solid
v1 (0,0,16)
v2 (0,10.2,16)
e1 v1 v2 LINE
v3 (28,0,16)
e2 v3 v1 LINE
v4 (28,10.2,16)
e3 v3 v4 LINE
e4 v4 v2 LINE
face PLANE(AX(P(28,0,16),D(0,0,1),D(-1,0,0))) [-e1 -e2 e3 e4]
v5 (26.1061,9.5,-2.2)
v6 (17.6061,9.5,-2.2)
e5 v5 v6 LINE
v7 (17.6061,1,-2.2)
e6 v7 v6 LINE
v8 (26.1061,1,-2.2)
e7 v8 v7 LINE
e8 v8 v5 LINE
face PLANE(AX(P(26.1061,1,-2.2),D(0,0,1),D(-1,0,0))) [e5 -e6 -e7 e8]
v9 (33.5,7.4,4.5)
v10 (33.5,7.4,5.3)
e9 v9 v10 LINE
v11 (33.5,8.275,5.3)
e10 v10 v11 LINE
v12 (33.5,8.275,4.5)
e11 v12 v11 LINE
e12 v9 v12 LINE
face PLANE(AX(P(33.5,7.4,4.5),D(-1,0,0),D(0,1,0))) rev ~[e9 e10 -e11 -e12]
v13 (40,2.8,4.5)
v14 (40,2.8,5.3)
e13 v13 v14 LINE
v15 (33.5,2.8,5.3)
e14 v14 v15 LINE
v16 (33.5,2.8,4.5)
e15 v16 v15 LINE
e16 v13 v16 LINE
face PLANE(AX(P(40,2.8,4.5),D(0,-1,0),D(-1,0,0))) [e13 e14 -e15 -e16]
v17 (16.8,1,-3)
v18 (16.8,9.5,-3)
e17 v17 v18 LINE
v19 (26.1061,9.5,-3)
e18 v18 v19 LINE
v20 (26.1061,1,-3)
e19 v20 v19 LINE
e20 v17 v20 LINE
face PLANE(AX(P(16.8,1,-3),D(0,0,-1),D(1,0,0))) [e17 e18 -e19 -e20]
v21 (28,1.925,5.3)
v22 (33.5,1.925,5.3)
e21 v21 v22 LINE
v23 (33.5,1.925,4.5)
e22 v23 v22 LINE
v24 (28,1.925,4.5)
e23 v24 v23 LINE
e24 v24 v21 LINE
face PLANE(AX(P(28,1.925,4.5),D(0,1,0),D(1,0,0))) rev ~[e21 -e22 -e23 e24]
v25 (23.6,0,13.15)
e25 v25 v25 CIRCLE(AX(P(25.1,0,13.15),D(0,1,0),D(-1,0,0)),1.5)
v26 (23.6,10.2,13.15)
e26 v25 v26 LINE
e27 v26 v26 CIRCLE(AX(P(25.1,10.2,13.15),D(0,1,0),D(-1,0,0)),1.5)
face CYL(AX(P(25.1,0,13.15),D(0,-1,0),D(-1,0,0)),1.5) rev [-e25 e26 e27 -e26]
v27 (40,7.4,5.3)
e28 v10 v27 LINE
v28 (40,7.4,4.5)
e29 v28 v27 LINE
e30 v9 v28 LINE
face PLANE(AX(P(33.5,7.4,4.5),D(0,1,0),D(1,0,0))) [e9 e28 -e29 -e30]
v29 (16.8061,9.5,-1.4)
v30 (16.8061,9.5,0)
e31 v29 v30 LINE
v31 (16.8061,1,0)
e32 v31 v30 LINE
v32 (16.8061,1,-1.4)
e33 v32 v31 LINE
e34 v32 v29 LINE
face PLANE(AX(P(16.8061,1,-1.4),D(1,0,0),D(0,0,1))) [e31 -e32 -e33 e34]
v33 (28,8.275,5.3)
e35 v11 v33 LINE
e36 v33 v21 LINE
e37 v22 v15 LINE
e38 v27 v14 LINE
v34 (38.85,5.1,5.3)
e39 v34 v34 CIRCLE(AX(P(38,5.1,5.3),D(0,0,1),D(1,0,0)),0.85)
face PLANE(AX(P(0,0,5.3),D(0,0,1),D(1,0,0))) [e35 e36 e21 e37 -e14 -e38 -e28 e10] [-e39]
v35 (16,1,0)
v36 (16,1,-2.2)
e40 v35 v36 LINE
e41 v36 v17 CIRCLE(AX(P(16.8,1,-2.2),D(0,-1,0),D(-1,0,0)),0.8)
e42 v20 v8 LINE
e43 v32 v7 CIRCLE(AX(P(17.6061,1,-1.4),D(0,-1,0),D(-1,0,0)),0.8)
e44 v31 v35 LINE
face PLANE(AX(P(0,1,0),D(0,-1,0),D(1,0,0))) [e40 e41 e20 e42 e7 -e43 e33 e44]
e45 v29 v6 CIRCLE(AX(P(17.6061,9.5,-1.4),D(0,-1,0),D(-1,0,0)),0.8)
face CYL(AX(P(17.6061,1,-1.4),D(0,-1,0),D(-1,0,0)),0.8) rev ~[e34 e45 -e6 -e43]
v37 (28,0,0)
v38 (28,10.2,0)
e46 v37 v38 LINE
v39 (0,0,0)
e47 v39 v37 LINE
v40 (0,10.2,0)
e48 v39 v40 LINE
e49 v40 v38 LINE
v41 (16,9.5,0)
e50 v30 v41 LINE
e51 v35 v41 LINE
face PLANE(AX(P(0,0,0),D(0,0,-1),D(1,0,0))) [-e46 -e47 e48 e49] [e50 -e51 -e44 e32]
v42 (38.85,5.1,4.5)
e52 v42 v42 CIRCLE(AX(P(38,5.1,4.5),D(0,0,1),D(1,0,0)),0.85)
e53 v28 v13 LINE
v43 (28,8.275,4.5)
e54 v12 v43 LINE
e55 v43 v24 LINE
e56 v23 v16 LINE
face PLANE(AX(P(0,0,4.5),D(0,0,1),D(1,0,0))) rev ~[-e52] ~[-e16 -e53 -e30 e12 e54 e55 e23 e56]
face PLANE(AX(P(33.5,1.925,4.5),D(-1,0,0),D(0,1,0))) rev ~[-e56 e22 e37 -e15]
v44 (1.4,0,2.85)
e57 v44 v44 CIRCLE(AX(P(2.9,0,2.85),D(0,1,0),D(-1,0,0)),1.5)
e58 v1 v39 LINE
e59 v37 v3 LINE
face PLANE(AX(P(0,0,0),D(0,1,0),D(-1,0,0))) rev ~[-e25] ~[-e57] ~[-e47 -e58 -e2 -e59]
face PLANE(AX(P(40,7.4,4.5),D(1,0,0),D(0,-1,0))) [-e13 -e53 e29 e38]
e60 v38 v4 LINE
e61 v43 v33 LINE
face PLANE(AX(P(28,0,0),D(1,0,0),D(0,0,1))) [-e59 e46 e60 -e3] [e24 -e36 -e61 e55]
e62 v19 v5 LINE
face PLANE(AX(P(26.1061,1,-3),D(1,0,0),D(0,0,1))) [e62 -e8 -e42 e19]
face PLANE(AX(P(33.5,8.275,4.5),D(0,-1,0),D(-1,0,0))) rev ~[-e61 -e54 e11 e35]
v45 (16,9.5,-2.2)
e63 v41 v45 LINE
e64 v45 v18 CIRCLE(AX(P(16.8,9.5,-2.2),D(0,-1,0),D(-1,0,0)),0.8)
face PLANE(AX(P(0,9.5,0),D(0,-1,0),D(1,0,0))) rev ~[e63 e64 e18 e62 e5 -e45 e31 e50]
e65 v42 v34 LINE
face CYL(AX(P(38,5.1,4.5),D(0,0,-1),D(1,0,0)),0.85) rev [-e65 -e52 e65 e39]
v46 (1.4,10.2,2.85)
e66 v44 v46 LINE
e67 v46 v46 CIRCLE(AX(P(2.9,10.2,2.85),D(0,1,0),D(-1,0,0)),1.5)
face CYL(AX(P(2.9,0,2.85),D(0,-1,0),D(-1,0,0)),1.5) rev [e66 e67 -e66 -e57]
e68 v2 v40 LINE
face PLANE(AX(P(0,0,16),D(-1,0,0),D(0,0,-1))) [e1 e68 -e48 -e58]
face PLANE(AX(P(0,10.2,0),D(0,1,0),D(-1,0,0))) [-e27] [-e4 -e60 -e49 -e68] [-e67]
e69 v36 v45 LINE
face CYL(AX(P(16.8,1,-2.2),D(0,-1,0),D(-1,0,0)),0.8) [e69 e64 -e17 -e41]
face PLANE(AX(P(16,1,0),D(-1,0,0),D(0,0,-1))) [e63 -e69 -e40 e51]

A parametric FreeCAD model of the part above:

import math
import FreeCAD as App
import Part
import Sketcher
from FreeCAD import Vector
Q = App.Units.Quantity

doc = App.newDocument("Part")
body = doc.addObject("PartDesign::Body", "Body")

# Sketch on XZ plane
sketch1 = body.newObject("Sketcher::SketchObject", "Sketch")
sketch1.AttachmentSupport = (doc.getObject("XZ_Plane"), [""])
sketch1.MapMode = "FlatFace"
sketch1.addGeometry(Part.LineSegment(Vector(28, 0, 0), Vector(0, 0, 0)), False)
sketch1.addGeometry(Part.LineSegment(Vector(0, 0, 0), Vector(0, 16, 0)), False)
sketch1.addGeometry(Part.LineSegment(Vector(0, 16, 0), Vector(28, 16, 0)), False)
sketch1.addGeometry(Part.LineSegment(Vector(28, 16, 0), Vector(28, 0, 0)), False)
sketch1.addGeometry(Part.Circle(Vector(2.9, 2.9, 0), Vector(0, 0, 1), 1.5), False)
sketch1.addGeometry(Part.Circle(Vector(25.1, 13.2, 0), Vector(0, 0, 1), 1.5), False)
sketch1.addConstraint(Sketcher.Constraint("Coincident", 0, 2, 1, 1))
sketch1.addConstraint(Sketcher.Constraint("Coincident", 1, 2, 2, 1))
sketch1.addConstraint(Sketcher.Constraint("Coincident", 2, 2, 3, 1))
sketch1.addConstraint(Sketcher.Constraint("Coincident", 3, 2, 0, 1))
sketch1.addConstraint(Sketcher.Constraint("Horizontal", 0))
sketch1.addConstraint(Sketcher.Constraint("Vertical", 1))
sketch1.addConstraint(Sketcher.Constraint("Horizontal", 2))
sketch1.addConstraint(Sketcher.Constraint("Vertical", 3))
sketch1.addConstraint(Sketcher.Constraint("Coincident", 0, 2, -1, 1))
sketch1.addConstraint(Sketcher.Constraint("Equal", 4, 5))
sketch1.addConstraint(Sketcher.Constraint("Diameter", 4, Q("3 mm")))
sketch1.addConstraint(Sketcher.Constraint("DistanceX", 0, 2, 0, 1, Q("28 mm")))
sketch1.addConstraint(Sketcher.Constraint("DistanceY", 1, 1, 1, 2, Q("16 mm")))
sketch1.addConstraint(Sketcher.Constraint("DistanceX", 4, 3, 5, 3, Q("22.2 mm")))
sketch1.addConstraint(Sketcher.Constraint("DistanceY", 4, 3, 5, 3, Q("10.3 mm")))
sketch1.addConstraint(Sketcher.Constraint("DistanceX", -1, 1, 4, 3, Q("2.9 mm")))
sketch1.addConstraint(Sketcher.Constraint("DistanceY", -1, 1, 4, 3, Q("2.85 mm")))
pad1 = body.newObject("PartDesign::Pad", "Pad")
pad1.Profile = sketch1
pad1.Length = 10.2
pad1.Reversed = True

# Sketch on XY plane
sketch2 = body.newObject("Sketcher::SketchObject", "Sketch001")
sketch2.AttachmentSupport = (doc.getObject("XY_Plane"), [""])
sketch2.MapMode = "FlatFace"
sketch2.AttachmentOffset = App.Placement(Vector(0, 0, 4.5), App.Rotation())
sketch2.addGeometry(Part.LineSegment(Vector(28, 8.3, 0), Vector(28, 1.9, 0)), False)
sketch2.addGeometry(Part.LineSegment(Vector(28, 1.9, 0), Vector(33.5, 1.9, 0)), False)
sketch2.addGeometry(Part.LineSegment(Vector(33.5, 1.9, 0), Vector(33.5, 2.8, 0)), False)
sketch2.addGeometry(Part.LineSegment(Vector(33.5, 2.8, 0), Vector(40, 2.8, 0)), False)
sketch2.addGeometry(Part.LineSegment(Vector(40, 2.8, 0), Vector(40, 7.4, 0)), False)
sketch2.addGeometry(Part.LineSegment(Vector(40, 7.4, 0), Vector(33.5, 7.4, 0)), False)
sketch2.addGeometry(Part.LineSegment(Vector(33.5, 7.4, 0), Vector(33.5, 8.3, 0)), False)
sketch2.addGeometry(Part.LineSegment(Vector(33.5, 8.3, 0), Vector(28, 8.3, 0)), False)
sketch2.addGeometry(Part.Circle(Vector(38, 5.1, 0), Vector(0, 0, 1), 0.8), False)
sketch2.addConstraint(Sketcher.Constraint("Coincident", 0, 2, 1, 1))
sketch2.addConstraint(Sketcher.Constraint("Coincident", 1, 2, 2, 1))
sketch2.addConstraint(Sketcher.Constraint("Coincident", 2, 2, 3, 1))
sketch2.addConstraint(Sketcher.Constraint("Coincident", 3, 2, 4, 1))
sketch2.addConstraint(Sketcher.Constraint("Coincident", 4, 2, 5, 1))
sketch2.addConstraint(Sketcher.Constraint("Coincident", 5, 2, 6, 1))
sketch2.addConstraint(Sketcher.Constraint("Coincident", 6, 2, 7, 1))
sketch2.addConstraint(Sketcher.Constraint("Coincident", 7, 2, 0, 1))
sketch2.addConstraint(Sketcher.Constraint("Vertical", 0))
sketch2.addConstraint(Sketcher.Constraint("Horizontal", 1))
sketch2.addConstraint(Sketcher.Constraint("Vertical", 2))
sketch2.addConstraint(Sketcher.Constraint("Horizontal", 3))
sketch2.addConstraint(Sketcher.Constraint("Vertical", 4))
sketch2.addConstraint(Sketcher.Constraint("Horizontal", 5))
sketch2.addConstraint(Sketcher.Constraint("Vertical", 6))
sketch2.addConstraint(Sketcher.Constraint("Horizontal", 7))
sketch2.addConstraint(Sketcher.Constraint("Vertical", 2, 2, 5, 2))
sketch2.addConstraint(Sketcher.Constraint("Equal", 2, 6))
sketch2.addConstraint(Sketcher.Constraint("Diameter", 8, Q("1.7 mm")))
sketch2.addConstraint(Sketcher.Constraint("DistanceX", 3, 1, 3, 2, Q("6.5 mm")))
sketch2.addConstraint(Sketcher.Constraint("DistanceY", 4, 1, 4, 2, Q("4.6 mm")))
sketch2.addConstraint(Sketcher.Constraint("DistanceX", 8, 3, 3, 2, Q("2 mm")))
sketch2.addConstraint(Sketcher.Constraint("DistanceX", 0, 2, 3, 2, Q("12 mm")))
sketch2.addConstraint(Sketcher.Constraint("DistanceY", 0, 2, 0, 1, Q("6.35 mm")))
sketch2.addConstraint(Sketcher.Constraint("DistanceX", -1, 1, 8, 3, Q("38 mm")))
sketch2.addConstraint(Sketcher.Constraint("DistanceY", -1, 1, 8, 3, Q("5.1 mm")))
sketch2.addConstraint(Sketcher.Constraint("DistanceY", -1, 1, 2, 2, Q("2.8 mm")))
pad2 = body.newObject("PartDesign::Pad", "Pad001")
pad2.Profile = sketch2
pad2.Length = 0.8

# Sketch on XZ plane
sketch3 = body.newObject("Sketcher::SketchObject", "Sketch002")
sketch3.AttachmentSupport = (doc.getObject("XZ_Plane"), [""])
sketch3.MapMode = "FlatFace"
sketch3.AttachmentOffset = App.Placement(Vector(0, 0, -1), App.Rotation())
sketch3.addGeometry(Part.LineSegment(Vector(16.8, -1.4, 0), Vector(16.8, 0, 0)), False)
sketch3.addGeometry(Part.LineSegment(Vector(16.8, 0, 0), Vector(16, 0, 0)), False)
sketch3.addGeometry(Part.LineSegment(Vector(16, 0, 0), Vector(16, -2.2, 0)), False)
sketch3.addGeometry(Part.ArcOfCircle(Part.Circle(Vector(16.8, -2.2, 0), Vector(0, 0, 1), 0.8), math.radians(180), math.radians(270)), False)
sketch3.addGeometry(Part.LineSegment(Vector(16.8, -3, 0), Vector(26.1, -3, 0)), False)
sketch3.addGeometry(Part.LineSegment(Vector(26.1, -3, 0), Vector(26.1, -2.2, 0)), False)
sketch3.addGeometry(Part.LineSegment(Vector(26.1, -2.2, 0), Vector(17.6, -2.2, 0)), False)
sketch3.addGeometry(Part.ArcOfCircle(Part.Circle(Vector(17.6, -1.4, 0), Vector(0, 0, 1), 0.8), math.radians(180), math.radians(270)), False)
sketch3.addConstraint(Sketcher.Constraint("Coincident", 0, 2, 1, 1))
sketch3.addConstraint(Sketcher.Constraint("Coincident", 1, 2, 2, 1))
sketch3.addConstraint(Sketcher.Constraint("Tangent", 2, 2, 3, 1))
sketch3.addConstraint(Sketcher.Constraint("Tangent", 3, 2, 4, 1))
sketch3.addConstraint(Sketcher.Constraint("Coincident", 4, 2, 5, 1))
sketch3.addConstraint(Sketcher.Constraint("Coincident", 5, 2, 6, 1))
sketch3.addConstraint(Sketcher.Constraint("Tangent", 6, 2, 7, 2))
sketch3.addConstraint(Sketcher.Constraint("Tangent", 7, 1, 0, 1))
sketch3.addConstraint(Sketcher.Constraint("Vertical", 0))
sketch3.addConstraint(Sketcher.Constraint("Horizontal", 1))
sketch3.addConstraint(Sketcher.Constraint("Vertical", 2))
sketch3.addConstraint(Sketcher.Constraint("Horizontal", 4))
sketch3.addConstraint(Sketcher.Constraint("Vertical", 5))
sketch3.addConstraint(Sketcher.Constraint("Horizontal", 6))
sketch3.addConstraint(Sketcher.Constraint("Equal", 3, 7))
sketch3.addConstraint(Sketcher.Constraint("PointOnObject", 0, 2, -1))
sketch3.addConstraint(Sketcher.Constraint("Horizontal", 2, 2, 5, 2))
sketch3.addConstraint(Sketcher.Constraint("Radius", 3, Q("0.8 mm")))
sketch3.addConstraint(Sketcher.Constraint("DistanceX", -1, 1, 1, 2, Q("16 mm")))
sketch3.addConstraint(Sketcher.Constraint("DistanceY", 3, 2, -1, 1, Q("3 mm")))
sketch3.addConstraint(Sketcher.Constraint("DistanceX", 0, 2, 4, 2, Q("9.3 mm")))
sketch3.addConstraint(Sketcher.Constraint("DistanceX", 1, 2, 1, 1, Q("0.806 mm")))
pad3 = body.newObject("PartDesign::Pad", "Pad002")
pad3.Profile = sketch3
pad3.Length = 8.5
pad3.Reversed = True

doc.recompute()
